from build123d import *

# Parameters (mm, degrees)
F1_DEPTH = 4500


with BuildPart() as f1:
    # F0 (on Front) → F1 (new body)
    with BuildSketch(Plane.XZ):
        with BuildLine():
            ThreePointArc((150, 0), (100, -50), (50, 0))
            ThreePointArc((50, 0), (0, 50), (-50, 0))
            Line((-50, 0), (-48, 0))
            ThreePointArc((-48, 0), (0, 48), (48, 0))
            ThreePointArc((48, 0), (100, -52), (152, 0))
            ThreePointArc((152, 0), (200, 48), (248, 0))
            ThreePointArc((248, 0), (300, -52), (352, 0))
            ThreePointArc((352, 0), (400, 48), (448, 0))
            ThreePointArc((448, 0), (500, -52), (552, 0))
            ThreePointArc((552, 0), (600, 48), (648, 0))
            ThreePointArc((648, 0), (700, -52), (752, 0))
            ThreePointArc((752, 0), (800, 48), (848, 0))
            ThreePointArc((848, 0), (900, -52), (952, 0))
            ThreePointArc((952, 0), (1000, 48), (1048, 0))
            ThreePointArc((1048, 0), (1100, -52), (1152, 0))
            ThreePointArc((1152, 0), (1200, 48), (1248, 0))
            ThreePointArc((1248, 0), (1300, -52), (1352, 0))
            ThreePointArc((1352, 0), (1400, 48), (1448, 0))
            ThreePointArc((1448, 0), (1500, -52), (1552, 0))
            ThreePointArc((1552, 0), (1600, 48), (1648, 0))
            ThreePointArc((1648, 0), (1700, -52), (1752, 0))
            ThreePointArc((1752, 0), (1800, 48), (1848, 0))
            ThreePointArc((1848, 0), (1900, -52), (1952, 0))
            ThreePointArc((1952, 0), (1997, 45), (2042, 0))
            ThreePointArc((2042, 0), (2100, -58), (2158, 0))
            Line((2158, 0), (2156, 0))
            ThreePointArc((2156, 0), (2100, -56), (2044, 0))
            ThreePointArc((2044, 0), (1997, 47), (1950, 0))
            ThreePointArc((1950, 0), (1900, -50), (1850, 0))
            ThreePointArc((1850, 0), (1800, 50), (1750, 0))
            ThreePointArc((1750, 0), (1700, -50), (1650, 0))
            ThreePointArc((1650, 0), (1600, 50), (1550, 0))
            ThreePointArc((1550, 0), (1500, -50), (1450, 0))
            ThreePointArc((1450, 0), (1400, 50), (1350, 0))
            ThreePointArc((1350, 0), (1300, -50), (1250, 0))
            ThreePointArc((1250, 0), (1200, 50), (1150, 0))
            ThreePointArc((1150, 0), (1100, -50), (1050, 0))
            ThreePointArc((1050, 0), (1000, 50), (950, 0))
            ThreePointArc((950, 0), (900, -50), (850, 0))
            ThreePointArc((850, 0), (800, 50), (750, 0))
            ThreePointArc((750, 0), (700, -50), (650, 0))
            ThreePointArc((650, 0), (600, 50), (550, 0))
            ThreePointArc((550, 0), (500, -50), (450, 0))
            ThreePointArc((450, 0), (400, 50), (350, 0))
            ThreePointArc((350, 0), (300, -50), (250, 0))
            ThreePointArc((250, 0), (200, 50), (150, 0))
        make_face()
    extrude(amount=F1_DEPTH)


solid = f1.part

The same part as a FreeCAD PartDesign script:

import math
import FreeCAD as App
import Part
import Sketcher
Q = App.Units.Quantity

doc = App.newDocument("Part")
body = doc.addObject("PartDesign::Body", "Body")

# Sketch on XZ plane
sketch1 = body.newObject("Sketcher::SketchObject", "Sketch")
sketch1.AttachmentSupport = (doc.getObject("XZ_Plane"), [""])
sketch1.MapMode = "FlatFace"
sketch1.addGeometry(Part.ArcOfCircle(Part.Circle(App.Vector(100, 0, 0), App.Vector(0, 0, 1), 50), math.radians(180), math.radians(360)), False)
sketch1.addGeometry(Part.ArcOfCircle(Part.Circle(App.Vector(0, 0, 0), App.Vector(0, 0, 1), 50), math.radians(0), math.radians(180)), False)
sketch1.addGeometry(Part.LineSegment(App.Vector(-50, 0, 0), App.Vector(-48, 0, 0)), False)
sketch1.addGeometry(Part.ArcOfCircle(Part.Circle(App.Vector(0, 0, 0), App.Vector(0, 0, 1), 48), math.radians(0), math.radians(180)), False)
sketch1.addGeometry(Part.ArcOfCircle(Part.Circle(App.Vector(100, 0, 0), App.Vector(0, 0, 1), 52), math.radians(180), math.radians(360)), False)
sketch1.addGeometry(Part.ArcOfCircle(Part.Circle(App.Vector(200, 0, 0), App.Vector(0, 0, 1), 48), math.radians(0), math.radians(180)), False)
sketch1.addGeometry(Part.ArcOfCircle(Part.Circle(App.Vector(300, 0, 0), App.Vector(0, 0, 1), 52), math.radians(180), math.radians(360)), False)
sketch1.addGeometry(Part.ArcOfCircle(Part.Circle(App.Vector(400, 0, 0), App.Vector(0, 0, 1), 48), math.radians(0), math.radians(180)), False)
sketch1.addGeometry(Part.ArcOfCircle(Part.Circle(App.Vector(500, 0, 0), App.Vector(0, 0, 1), 52), math.radians(180), math.radians(360)), False)
sketch1.addGeometry(Part.ArcOfCircle(Part.Circle(App.Vector(600, 0, 0), App.Vector(0, 0, 1), 48), math.radians(0), math.radians(180)), False)
sketch1.addGeometry(Part.ArcOfCircle(Part.Circle(App.Vector(700, 0, 0), App.Vector(0, 0, 1), 52), math.radians(180), math.radians(360)), False)
sketch1.addGeometry(Part.ArcOfCircle(Part.Circle(App.Vector(800, 0, 0), App.Vector(0, 0, 1), 48), math.radians(0), math.radians(180)), False)
sketch1.addGeometry(Part.ArcOfCircle(Part.Circle(App.Vector(900, 0, 0), App.Vector(0, 0, 1), 52), math.radians(180), math.radians(360)), False)
sketch1.addGeometry(Part.ArcOfCircle(Part.Circle(App.Vector(1000, 0, 0), App.Vector(0, 0, 1), 48), math.radians(0), math.radians(180)), False)
sketch1.addGeometry(Part.ArcOfCircle(Part.Circle(App.Vector(1100, 0, 0), App.Vector(0, 0, 1), 52), math.radians(180), math.radians(360)), False)
sketch1.addGeometry(Part.ArcOfCircle(Part.Circle(App.Vector(1200, 0, 0), App.Vector(0, 0, 1), 48), math.radians(0), math.radians(180)), False)
sketch1.addGeometry(Part.ArcOfCircle(Part.Circle(App.Vector(1300, 0, 0), App.Vector(0, 0, 1), 52), math.radians(180), math.radians(360)), False)
sketch1.addGeometry(Part.ArcOfCircle(Part.Circle(App.Vector(1400, 0, 0), App.Vector(0, 0, 1), 48), math.radians(0), math.radians(180)), False)
sketch1.addGeometry(Part.ArcOfCircle(Part.Circle(App.Vector(1500, 0, 0), App.Vector(0, 0, 1), 52), math.radians(180), math.radians(360)), False)
sketch1.addGeometry(Part.ArcOfCircle(Part.Circle(App.Vector(1600, 0, 0), App.Vector(0, 0, 1), 48), math.radians(0), math.radians(180)), False)
sketch1.addGeometry(Part.ArcOfCircle(Part.Circle(App.Vector(1700, 0, 0), App.Vector(0, 0, 1), 52), math.radians(180), math.radians(360)), False)
sketch1.addGeometry(Part.ArcOfCircle(Part.Circle(App.Vector(1800, 0, 0), App.Vector(0, 0, 1), 48), math.radians(0), math.radians(180)), False)
sketch1.addGeometry(Part.ArcOfCircle(Part.Circle(App.Vector(1900, 0, 0), App.Vector(0, 0, 1), 52), math.radians(180), math.radians(360)), False)
sketch1.addGeometry(Part.ArcOfCircle(Part.Circle(App.Vector(1997, 0, 0), App.Vector(0, 0, 1), 45), math.radians(0), math.radians(180)), False)
sketch1.addGeometry(Part.ArcOfCircle(Part.Circle(App.Vector(2100, 0, 0), App.Vector(0, 0, 1), 58), math.radians(180), math.radians(360)), False)
sketch1.addGeometry(Part.LineSegment(App.Vector(2158, 0, 0), App.Vector(2156, 0, 0)), False)
sketch1.addGeometry(Part.ArcOfCircle(Part.Circle(App.Vector(2100, 0, 0), App.Vector(0, 0, 1), 56), math.radians(180), math.radians(360)), False)
sketch1.addGeometry(Part.ArcOfCircle(Part.Circle(App.Vector(1997, 0, 0), App.Vector(0, 0, 1), 47), math.radians(0), math.radians(180)), False)
sketch1.addGeometry(Part.ArcOfCircle(Part.Circle(App.Vector(1900, 0, 0), App.Vector(0, 0, 1), 50), math.radians(180), math.radians(360)), False)
sketch1.addGeometry(Part.ArcOfCircle(Part.Circle(App.Vector(1800, 0, 0), App.Vector(0, 0, 1), 50), math.radians(0), math.radians(180)), False)
sketch1.addGeometry(Part.ArcOfCircle(Part.Circle(App.Vector(1700, 0, 0), App.Vector(0, 0, 1), 50), math.radians(180), math.radians(360)), False)
sketch1.addGeometry(Part.ArcOfCircle(Part.Circle(App.Vector(1600, 0, 0), App.Vector(0, 0, 1), 50), math.radians(0), math.radians(180)), False)
sketch1.addGeometry(Part.ArcOfCircle(Part.Circle(App.Vector(1500, 0, 0), App.Vector(0, 0, 1), 50), math.radians(180), math.radians(360)), False)
sketch1.addGeometry(Part.ArcOfCircle(Part.Circle(App.Vector(1400, 0, 0), App.Vector(0, 0, 1), 50), math.radians(0), math.radians(180)), False)
sketch1.addGeometry(Part.ArcOfCircle(Part.Circle(App.Vector(1300, 0, 0), App.Vector(0, 0, 1), 50), math.radians(180), math.radians(360)), False)
sketch1.addGeometry(Part.ArcOfCircle(Part.Circle(App.Vector(1200, 0, 0), App.Vector(0, 0, 1), 50), math.radians(0), math.radians(180)), False)
sketch1.addGeometry(Part.ArcOfCircle(Part.Circle(App.Vector(1100, 0, 0), App.Vector(0, 0, 1), 50), math.radians(180), math.radians(360)), False)
sketch1.addGeometry(Part.ArcOfCircle(Part.Circle(App.Vector(1000, 0, 0), App.Vector(0, 0, 1), 50), math.radians(0), math.radians(180)), False)
sketch1.addGeometry(Part.ArcOfCircle(Part.Circle(App.Vector(900, 0, 0), App.Vector(0, 0, 1), 50), math.radians(180), math.radians(360)), False)
sketch1.addGeometry(Part.ArcOfCircle(Part.Circle(App.Vector(800, 0, 0), App.Vector(0, 0, 1), 50), math.radians(0), math.radians(180)), False)
sketch1.addGeometry(Part.ArcOfCircle(Part.Circle(App.Vector(700, 0, 0), App.Vector(0, 0, 1), 50), math.radians(180), math.radians(360)), False)
sketch1.addGeometry(Part.ArcOfCircle(Part.Circle(App.Vector(600, 0, 0), App.Vector(0, 0, 1), 50), math.radians(0), math.radians(180)), False)
sketch1.addGeometry(Part.ArcOfCircle(Part.Circle(App.Vector(500, 0, 0), App.Vector(0, 0, 1), 50), math.radians(180), math.radians(360)), False)
sketch1.addGeometry(Part.ArcOfCircle(Part.Circle(App.Vector(400, 0, 0), App.Vector(0, 0, 1), 50), math.radians(0), math.radians(180)), False)
sketch1.addGeometry(Part.ArcOfCircle(Part.Circle(App.Vector(300, 0, 0), App.Vector(0, 0, 1), 50), math.radians(180), math.radians(360)), False)
sketch1.addGeometry(Part.ArcOfCircle(Part.Circle(App.Vector(200, 0, 0), App.Vector(0, 0, 1), 50), math.radians(0), math.radians(180)), False)
sketch1.addConstraint(Sketcher.Constraint("Tangent", 0, 1, 1, 1))
sketch1.addConstraint(Sketcher.Constraint("Coincident", 1, 2, 2, 1))
sketch1.addConstraint(Sketcher.Constraint("Coincident", 2, 2, 3, 2))
sketch1.addConstraint(Sketcher.Constraint("Tangent", 3, 1, 4, 1))
sketch1.addConstraint(Sketcher.Constraint("Tangent", 4, 2, 5, 2))
sketch1.addConstraint(Sketcher.Constraint("Tangent", 5, 1, 6, 1))
sketch1.addConstraint(Sketcher.Constraint("Tangent", 6, 2, 7, 2))
sketch1.addConstraint(Sketcher.Constraint("Tangent", 7, 1, 8, 1))
sketch1.addConstraint(Sketcher.Constraint("Tangent", 8, 2, 9, 2))
sketch1.addConstraint(Sketcher.Constraint("Tangent", 9, 1, 10, 1))
sketch1.addConstraint(Sketcher.Constraint("Tangent", 10, 2, 11, 2))
sketch1.addConstraint(Sketcher.Constraint("Tangent", 11, 1, 12, 1))
sketch1.addConstraint(Sketcher.Constraint("Tangent", 12, 2, 13, 2))
sketch1.addConstraint(Sketcher.Constraint("Tangent", 13, 1, 14, 1))
sketch1.addConstraint(Sketcher.Constraint("Tangent", 14, 2, 15, 2))
sketch1.addConstraint(Sketcher.Constraint("Tangent", 15, 1, 16, 1))
sketch1.addConstraint(Sketcher.Constraint("Tangent", 16, 2, 17, 2))
sketch1.addConstraint(Sketcher.Constraint("Tangent", 17, 1, 18, 1))
sketch1.addConstraint(Sketcher.Constraint("Tangent", 18, 2, 19, 2))
sketch1.addConstraint(Sketcher.Constraint("Tangent", 19, 1, 20, 1))
sketch1.addConstraint(Sketcher.Constraint("Tangent", 20, 2, 21, 2))
sketch1.addConstraint(Sketcher.Constraint("Tangent", 21, 1, 22, 1))
sketch1.addConstraint(Sketcher.Constraint("Tangent", 22, 2, 23, 2))
sketch1.addConstraint(Sketcher.Constraint("Tangent", 23, 1, 24, 1))
sketch1.addConstraint(Sketcher.Constraint("Coincident", 24, 2, 25, 1))
sketch1.addConstraint(Sketcher.Constraint("Coincident", 25, 2, 26, 2))
sketch1.addConstraint(Sketcher.Constraint("Tangent", 26, 1, 27, 1))
sketch1.addConstraint(Sketcher.Constraint("Tangent", 27, 2, 28, 2))
sketch1.addConstraint(Sketcher.Constraint("Tangent", 28, 1, 29, 1))
sketch1.addConstraint(Sketcher.Constraint("Tangent", 29, 2, 30, 2))
sketch1.addConstraint(Sketcher.Constraint("Tangent", 30, 1, 31, 1))
sketch1.addConstraint(Sketcher.Constraint("Tangent", 31, 2, 32, 2))
sketch1.addConstraint(Sketcher.Constraint("Tangent", 32, 1, 33, 1))
sketch1.addConstraint(Sketcher.Constraint("Tangent", 33, 2, 34, 2))
sketch1.addConstraint(Sketcher.Constraint("Tangent", 34, 1, 35, 1))
sketch1.addConstraint(Sketcher.Constraint("Tangent", 35, 2, 36, 2))
sketch1.addConstraint(Sketcher.Constraint("Tangent", 36, 1, 37, 1))
sketch1.addConstraint(Sketcher.Constraint("Tangent", 37, 2, 38, 2))
sketch1.addConstraint(Sketcher.Constraint("Tangent", 38, 1, 39, 1))
sketch1.addConstraint(Sketcher.Constraint("Tangent", 39, 2, 40, 2))
sketch1.addConstraint(Sketcher.Constraint("Tangent", 40, 1, 41, 1))
sketch1.addConstraint(Sketcher.Constraint("Tangent", 41, 2, 42, 2))
sketch1.addConstraint(Sketcher.Constraint("Tangent", 42, 1, 43, 1))
sketch1.addConstraint(Sketcher.Constraint("Tangent", 43, 2, 44, 2))
sketch1.addConstraint(Sketcher.Constraint("Tangent", 44, 1, 45, 1))
sketch1.addConstraint(Sketcher.Constraint("Tangent", 45, 2, 0, 2))
sketch1.addConstraint(Sketcher.Constraint("Horizontal", 2))
sketch1.addConstraint(Sketcher.Constraint("Horizontal", 25))
sketch1.addConstraint(Sketcher.Constraint("Coincident", 1, 3, -1, 1))
sketch1.addConstraint(Sketcher.Constraint("Coincident", 3, 3, -1, 1))
sketch1.addConstraint(Sketcher.Constraint("Coincident", 4, 3, 0, 3))
sketch1.addConstraint(Sketcher.Constraint("Coincident", 26, 3, 24, 3))
sketch1.addConstraint(Sketcher.Constraint("Coincident", 27, 3, 23, 3))
sketch1.addConstraint(Sketcher.Constraint("Coincident", 28, 3, 22, 3))
sketch1.addConstraint(Sketcher.Constraint("Coincident", 29, 3, 21, 3))
sketch1.addConstraint(Sketcher.Constraint("Coincident", 30, 3, 20, 3))
sketch1.addConstraint(Sketcher.Constraint("Coincident", 31, 3, 19, 3))
sketch1.addConstraint(Sketcher.Constraint("Coincident", 32, 3, 18, 3))
sketch1.addConstraint(Sketcher.Constraint("Coincident", 33, 3, 17, 3))
sketch1.addConstraint(Sketcher.Constraint("Coincident", 34, 3, 16, 3))
sketch1.addConstraint(Sketcher.Constraint("Coincident", 35, 3, 15, 3))
sketch1.addConstraint(Sketcher.Constraint("Coincident", 36, 3, 14, 3))
sketch1.addConstraint(Sketcher.Constraint("Coincident", 37, 3, 13, 3))
sketch1.addConstraint(Sketcher.Constraint("Coincident", 38, 3, 12, 3))
sketch1.addConstraint(Sketcher.Constraint("Coincident", 39, 3, 11, 3))
sketch1.addConstraint(Sketcher.Constraint("Coincident", 40, 3, 10, 3))
sketch1.addConstraint(Sketcher.Constraint("Coincident", 41, 3, 9, 3))
sketch1.addConstraint(Sketcher.Constraint("Coincident", 42, 3, 8, 3))
sketch1.addConstraint(Sketcher.Constraint("Coincident", 43, 3, 7, 3))
sketch1.addConstraint(Sketcher.Constraint("Coincident", 44, 3, 6, 3))
sketch1.addConstraint(Sketcher.Constraint("Coincident", 45, 3, 5, 3))
sketch1.addConstraint(Sketcher.Constraint("Equal", 0, 1))
sketch1.addConstraint(Sketcher.Constraint("Equal", 3, 5))
sketch1.addConstraint(Sketcher.Constraint("Equal", 4, 6))
sketch1.addConstraint(Sketcher.Constraint("Equal", 5, 7))
sketch1.addConstraint(Sketcher.Constraint("Equal", 6, 8))
sketch1.addConstraint(Sketcher.Constraint("Equal", 7, 9))
sketch1.addConstraint(Sketcher.Constraint("Equal", 8, 10))
sketch1.addConstraint(Sketcher.Constraint("Equal", 9, 11))
sketch1.addConstraint(Sketcher.Constraint("Equal", 10, 12))
sketch1.addConstraint(Sketcher.Constraint("Equal", 11, 13))
sketch1.addConstraint(Sketcher.Constraint("Equal", 12, 14))
sketch1.addConstraint(Sketcher.Constraint("Equal", 13, 15))
sketch1.addConstraint(Sketcher.Constraint("Equal", 14, 16))
sketch1.addConstraint(Sketcher.Constraint("Equal", 15, 17))
sketch1.addConstraint(Sketcher.Constraint("Equal", 16, 18))
sketch1.addConstraint(Sketcher.Constraint("Equal", 17, 19))
sketch1.addConstraint(Sketcher.Constraint("Equal", 18, 20))
sketch1.addConstraint(Sketcher.Constraint("Equal", 19, 21))
sketch1.addConstraint(Sketcher.Constraint("Equal", 20, 22))
sketch1.addConstraint(Sketcher.Constraint("PointOnObject", 0, 3, -1))
sketch1.addConstraint(Sketcher.Constraint("PointOnObject", 5, 3, -1))
sketch1.addConstraint(Sketcher.Constraint("PointOnObject", 6, 3, -1))
sketch1.addConstraint(Sketcher.Constraint("PointOnObject", 7, 3, -1))
sketch1.addConstraint(Sketcher.Constraint("PointOnObject", 8, 3, -1))
sketch1.addConstraint(Sketcher.Constraint("PointOnObject", 9, 3, -1))
sketch1.addConstraint(Sketcher.Constraint("PointOnObject", 10, 3, -1))
sketch1.addConstraint(Sketcher.Constraint("PointOnObject", 11, 3, -1))
sketch1.addConstraint(Sketcher.Constraint("PointOnObject", 12, 3, -1))
sketch1.addConstraint(Sketcher.Constraint("PointOnObject", 13, 3, -1))
sketch1.addConstraint(Sketcher.Constraint("PointOnObject", 14, 3, -1))
sketch1.addConstraint(Sketcher.Constraint("PointOnObject", 15, 3, -1))
sketch1.addConstraint(Sketcher.Constraint("PointOnObject", 16, 3, -1))
sketch1.addConstraint(Sketcher.Constraint("PointOnObject", 17, 3, -1))
sketch1.addConstraint(Sketcher.Constraint("PointOnObject", 18, 3, -1))
sketch1.addConstraint(Sketcher.Constraint("PointOnObject", 19, 3, -1))
sketch1.addConstraint(Sketcher.Constraint("PointOnObject", 20, 3, -1))
sketch1.addConstraint(Sketcher.Constraint("PointOnObject", 21, 3, -1))
sketch1.addConstraint(Sketcher.Constraint("PointOnObject", 22, 3, -1))
sketch1.addConstraint(Sketcher.Constraint("PointOnObject", 23, 3, -1))
sketch1.addConstraint(Sketcher.Constraint("PointOnObject", 24, 3, -1))
sketch1.addConstraint(Sketcher.Constraint("PointOnObject", 1, 2, -1))
sketch1.addConstraint(Sketcher.Constraint("PointOnObject", 24, 2, -1))
sketch1.addConstraint(Sketcher.Constraint("Radius", 0, Q("50 mm")))
sketch1.addConstraint(Sketcher.Constraint("Radius", 3, Q("48 mm")))
sketch1.addConstraint(Sketcher.Constraint("Radius", 23, Q("45 mm")))
sketch1.addConstraint(Sketcher.Constraint("Radius", 24, Q("58 mm")))
pad1 = body.newObject("PartDesign::Pad", "Pad")
pad1.Profile = sketch1
pad1.Length = 4500

doc.recompute()
